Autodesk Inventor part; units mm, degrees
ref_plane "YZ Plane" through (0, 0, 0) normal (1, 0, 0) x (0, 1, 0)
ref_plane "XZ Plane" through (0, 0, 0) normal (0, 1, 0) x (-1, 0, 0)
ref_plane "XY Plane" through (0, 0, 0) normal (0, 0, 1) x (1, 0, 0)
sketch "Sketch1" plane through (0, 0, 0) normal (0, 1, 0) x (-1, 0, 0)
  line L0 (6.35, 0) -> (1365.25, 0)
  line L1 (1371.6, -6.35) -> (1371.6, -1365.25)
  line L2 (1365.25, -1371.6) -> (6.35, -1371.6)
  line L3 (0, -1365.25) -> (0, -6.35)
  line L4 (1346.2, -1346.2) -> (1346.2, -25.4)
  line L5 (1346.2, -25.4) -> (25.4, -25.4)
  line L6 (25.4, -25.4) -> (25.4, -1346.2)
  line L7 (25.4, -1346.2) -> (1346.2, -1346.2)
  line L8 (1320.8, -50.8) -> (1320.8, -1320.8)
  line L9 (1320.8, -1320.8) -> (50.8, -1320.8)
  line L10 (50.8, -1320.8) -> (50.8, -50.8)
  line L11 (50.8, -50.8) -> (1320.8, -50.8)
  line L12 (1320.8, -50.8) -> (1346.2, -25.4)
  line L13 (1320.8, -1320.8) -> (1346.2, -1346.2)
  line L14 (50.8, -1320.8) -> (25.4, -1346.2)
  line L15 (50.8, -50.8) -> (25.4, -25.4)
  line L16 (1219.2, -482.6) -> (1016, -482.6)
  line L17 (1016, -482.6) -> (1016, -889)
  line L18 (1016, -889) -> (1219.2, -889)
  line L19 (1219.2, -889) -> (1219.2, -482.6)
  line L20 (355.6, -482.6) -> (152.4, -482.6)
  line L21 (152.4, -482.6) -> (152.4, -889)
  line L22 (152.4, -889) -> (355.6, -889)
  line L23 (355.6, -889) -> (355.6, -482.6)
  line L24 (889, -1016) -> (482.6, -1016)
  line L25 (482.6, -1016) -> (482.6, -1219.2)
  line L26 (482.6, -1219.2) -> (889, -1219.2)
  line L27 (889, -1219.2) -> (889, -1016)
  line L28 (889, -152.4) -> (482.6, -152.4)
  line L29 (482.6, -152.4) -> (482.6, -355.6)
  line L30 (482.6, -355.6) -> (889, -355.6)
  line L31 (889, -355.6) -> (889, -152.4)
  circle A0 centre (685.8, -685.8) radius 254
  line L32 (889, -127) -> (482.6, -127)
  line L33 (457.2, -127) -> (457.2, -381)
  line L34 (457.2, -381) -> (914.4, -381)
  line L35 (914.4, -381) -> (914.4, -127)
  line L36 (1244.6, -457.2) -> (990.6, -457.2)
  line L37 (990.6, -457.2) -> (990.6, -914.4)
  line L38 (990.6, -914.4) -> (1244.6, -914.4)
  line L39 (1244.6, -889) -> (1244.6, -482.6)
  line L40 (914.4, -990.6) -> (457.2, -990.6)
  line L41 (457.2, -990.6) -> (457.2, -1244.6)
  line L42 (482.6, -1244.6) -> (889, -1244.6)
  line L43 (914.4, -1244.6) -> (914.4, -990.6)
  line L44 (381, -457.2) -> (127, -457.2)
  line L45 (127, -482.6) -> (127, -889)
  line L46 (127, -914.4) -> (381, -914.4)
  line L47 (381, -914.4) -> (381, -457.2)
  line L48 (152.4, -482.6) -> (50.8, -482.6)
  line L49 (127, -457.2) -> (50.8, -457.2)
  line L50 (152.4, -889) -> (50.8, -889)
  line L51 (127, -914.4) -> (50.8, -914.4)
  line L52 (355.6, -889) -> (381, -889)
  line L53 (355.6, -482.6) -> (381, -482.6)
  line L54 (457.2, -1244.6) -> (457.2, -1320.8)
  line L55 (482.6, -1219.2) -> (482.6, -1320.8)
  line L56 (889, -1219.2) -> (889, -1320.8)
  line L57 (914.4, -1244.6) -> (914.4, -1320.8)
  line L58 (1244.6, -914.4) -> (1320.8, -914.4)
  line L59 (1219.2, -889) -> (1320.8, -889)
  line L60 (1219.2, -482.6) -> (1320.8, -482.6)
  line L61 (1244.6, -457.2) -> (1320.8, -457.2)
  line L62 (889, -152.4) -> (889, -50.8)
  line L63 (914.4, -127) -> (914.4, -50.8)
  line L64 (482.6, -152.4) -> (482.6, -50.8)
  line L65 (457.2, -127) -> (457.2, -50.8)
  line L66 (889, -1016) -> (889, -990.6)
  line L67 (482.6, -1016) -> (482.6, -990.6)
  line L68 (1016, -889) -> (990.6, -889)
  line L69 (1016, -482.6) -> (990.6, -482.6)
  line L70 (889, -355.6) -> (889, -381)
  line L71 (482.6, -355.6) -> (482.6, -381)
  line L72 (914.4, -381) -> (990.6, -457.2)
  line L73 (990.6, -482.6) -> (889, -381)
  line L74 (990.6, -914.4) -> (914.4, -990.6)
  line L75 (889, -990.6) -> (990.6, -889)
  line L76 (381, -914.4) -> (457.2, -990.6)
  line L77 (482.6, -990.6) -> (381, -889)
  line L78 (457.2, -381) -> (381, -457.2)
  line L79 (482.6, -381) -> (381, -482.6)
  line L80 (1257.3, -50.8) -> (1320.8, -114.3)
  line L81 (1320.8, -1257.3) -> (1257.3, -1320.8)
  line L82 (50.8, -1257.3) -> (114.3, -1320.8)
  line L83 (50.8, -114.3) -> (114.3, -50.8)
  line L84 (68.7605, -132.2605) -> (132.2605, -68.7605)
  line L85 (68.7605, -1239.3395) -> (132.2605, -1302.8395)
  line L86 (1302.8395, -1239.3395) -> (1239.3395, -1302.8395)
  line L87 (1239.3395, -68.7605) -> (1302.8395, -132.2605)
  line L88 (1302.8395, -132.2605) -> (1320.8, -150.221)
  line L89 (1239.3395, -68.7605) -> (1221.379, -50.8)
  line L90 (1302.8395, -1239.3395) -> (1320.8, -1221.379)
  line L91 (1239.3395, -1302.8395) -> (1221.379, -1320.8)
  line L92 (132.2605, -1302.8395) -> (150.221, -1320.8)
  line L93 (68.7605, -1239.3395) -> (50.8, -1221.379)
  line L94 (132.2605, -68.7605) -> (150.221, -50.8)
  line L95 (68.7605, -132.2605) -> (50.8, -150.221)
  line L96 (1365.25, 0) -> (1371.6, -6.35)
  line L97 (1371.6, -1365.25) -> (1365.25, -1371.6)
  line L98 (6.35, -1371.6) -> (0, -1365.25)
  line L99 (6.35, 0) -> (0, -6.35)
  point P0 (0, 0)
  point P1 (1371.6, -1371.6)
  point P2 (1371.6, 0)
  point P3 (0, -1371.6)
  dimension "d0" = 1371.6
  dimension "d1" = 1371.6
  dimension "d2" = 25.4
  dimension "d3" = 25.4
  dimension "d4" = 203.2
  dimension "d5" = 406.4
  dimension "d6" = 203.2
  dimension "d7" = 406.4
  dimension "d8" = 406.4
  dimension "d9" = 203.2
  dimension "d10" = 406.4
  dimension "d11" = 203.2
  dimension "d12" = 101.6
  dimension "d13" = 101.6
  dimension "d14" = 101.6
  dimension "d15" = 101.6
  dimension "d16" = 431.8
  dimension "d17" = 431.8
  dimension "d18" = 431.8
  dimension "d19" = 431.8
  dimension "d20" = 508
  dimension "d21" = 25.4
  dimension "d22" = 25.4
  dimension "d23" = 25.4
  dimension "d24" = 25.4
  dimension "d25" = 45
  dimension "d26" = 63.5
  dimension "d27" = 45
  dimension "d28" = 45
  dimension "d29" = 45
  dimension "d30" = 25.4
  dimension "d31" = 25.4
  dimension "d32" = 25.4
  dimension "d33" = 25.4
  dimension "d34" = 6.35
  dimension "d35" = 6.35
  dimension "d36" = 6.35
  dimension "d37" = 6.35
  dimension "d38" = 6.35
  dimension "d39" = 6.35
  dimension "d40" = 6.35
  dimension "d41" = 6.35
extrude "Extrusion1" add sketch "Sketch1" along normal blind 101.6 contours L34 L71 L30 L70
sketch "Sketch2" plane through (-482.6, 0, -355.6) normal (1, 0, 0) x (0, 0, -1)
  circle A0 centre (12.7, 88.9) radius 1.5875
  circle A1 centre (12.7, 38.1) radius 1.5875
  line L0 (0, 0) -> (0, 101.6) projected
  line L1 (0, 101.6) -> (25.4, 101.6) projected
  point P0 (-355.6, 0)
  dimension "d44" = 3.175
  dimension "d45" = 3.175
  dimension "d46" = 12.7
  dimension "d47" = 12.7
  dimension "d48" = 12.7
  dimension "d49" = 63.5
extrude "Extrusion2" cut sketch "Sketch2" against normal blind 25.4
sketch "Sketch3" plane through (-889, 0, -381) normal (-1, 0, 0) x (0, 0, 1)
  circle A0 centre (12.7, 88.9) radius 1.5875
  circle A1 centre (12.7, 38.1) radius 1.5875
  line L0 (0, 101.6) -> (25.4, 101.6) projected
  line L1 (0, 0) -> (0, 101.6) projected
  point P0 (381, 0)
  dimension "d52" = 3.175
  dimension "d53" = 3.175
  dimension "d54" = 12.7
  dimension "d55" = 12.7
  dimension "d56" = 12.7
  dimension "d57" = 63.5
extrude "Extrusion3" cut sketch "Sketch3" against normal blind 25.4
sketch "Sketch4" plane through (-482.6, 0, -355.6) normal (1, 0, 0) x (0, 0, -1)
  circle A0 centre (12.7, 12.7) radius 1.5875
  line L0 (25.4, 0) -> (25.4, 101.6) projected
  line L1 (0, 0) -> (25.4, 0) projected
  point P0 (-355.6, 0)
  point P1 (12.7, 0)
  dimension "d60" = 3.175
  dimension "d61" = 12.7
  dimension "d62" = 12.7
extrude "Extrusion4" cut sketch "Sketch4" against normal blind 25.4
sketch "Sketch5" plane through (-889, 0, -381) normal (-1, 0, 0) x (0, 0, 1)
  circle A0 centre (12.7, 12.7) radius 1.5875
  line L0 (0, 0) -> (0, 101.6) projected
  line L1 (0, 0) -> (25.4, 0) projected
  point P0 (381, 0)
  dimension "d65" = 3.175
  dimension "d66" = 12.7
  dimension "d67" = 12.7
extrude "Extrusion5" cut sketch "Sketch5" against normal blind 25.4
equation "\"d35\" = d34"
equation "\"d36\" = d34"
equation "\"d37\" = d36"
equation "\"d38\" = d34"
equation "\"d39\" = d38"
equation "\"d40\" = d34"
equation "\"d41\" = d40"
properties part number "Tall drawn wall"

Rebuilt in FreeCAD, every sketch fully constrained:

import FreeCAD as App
import Part
import Sketcher
from FreeCAD import Vector
Q = App.Units.Quantity


def add_polygon(sketch, points):
    """Adds a closed chain of lines whose ends are joined by coincident constraints."""
    first, n = sketch.GeometryCount, len(points)
    for a, b in zip(points, points[1:] + points[:1]):
        sketch.addGeometry(Part.LineSegment(App.Vector(*a, 0), App.Vector(*b, 0)), False)
    for i in range(n):
        sketch.addConstraint(Sketcher.Constraint("Coincident", first + i, 2, first + (i + 1) % n, 1))

doc = App.newDocument("Part")
body = doc.addObject("PartDesign::Body", "Body")

sketch1 = doc.addObject("Sketcher::SketchObject", "Sketch")
body.addObject(sketch1)
sketch1.AttachmentSupport = (doc.XZ_Plane, [""])
sketch1.MapMode = "FlatFace"
add_polygon(sketch1, [(-482.6, -381), (-889, -381), (-889, -355.6), (-482.6, -355.6)])
sketch1.addConstraint(Sketcher.Constraint("Horizontal", 0))
sketch1.addConstraint(Sketcher.Constraint("Vertical", 1))
sketch1.addConstraint(Sketcher.Constraint("Horizontal", 2))
sketch1.addConstraint(Sketcher.Constraint("Vertical", 3))
sketch1.addConstraint(Sketcher.Constraint("DistanceX", 0, 2, 0, 1, Q("16 in")))
sketch1.addConstraint(Sketcher.Constraint("DistanceY", 1, 1, 1, 2, Q("1 in")))
sketch1.addConstraint(Sketcher.Constraint("DistanceX", 0, 2, -1, 1, Q("35 in")))
sketch1.addConstraint(Sketcher.Constraint("DistanceY", 0, 2, -1, 1, Q("15 in")))
pad1 = doc.addObject("PartDesign::Pad", "Pad")
body.addObject(pad1)
pad1.Profile = sketch1
pad1.Length = Q("4 in")
pad1.Reversed = True

sketch2 = doc.addObject("Sketcher::SketchObject", "Sketch001")
body.addObject(sketch2)
sketch2.AttachmentSupport = (doc.YZ_Plane, [""])
sketch2.MapMode = "FlatFace"
sketch2.AttachmentOffset = App.Placement(Vector(0, 0, -19 * 25.4), App.Rotation())
sketch2.addGeometry(Part.Circle(Vector(88.9, -368.3, 0), Vector(0, 0, 1), 1.5875), False)
sketch2.addGeometry(Part.Circle(Vector(38.1, -368.3, 0), Vector(0, 0, 1), 1.5875), False)
sketch2.addConstraint(Sketcher.Constraint("Equal", 0, 1))
sketch2.addConstraint(Sketcher.Constraint("Horizontal", 0, 3, 1, 3))
sketch2.addConstraint(Sketcher.Constraint("Diameter", 0, Q("0.125 in")))
sketch2.addConstraint(Sketcher.Constraint("DistanceX", 1, 3, 0, 3, Q("2 in")))
sketch2.addConstraint(Sketcher.Constraint("DistanceX", -1, 1, 0, 3, Q("3.5 in")))
sketch2.addConstraint(Sketcher.Constraint("DistanceY", 0, 3, -1, 1, Q("14.5 in")))
pocket1 = doc.addObject("PartDesign::Pocket", "Pocket")
body.addObject(pocket1)
pocket1.Profile = sketch2
pocket1.Length = Q("1 in")

sketch3 = doc.addObject("Sketcher::SketchObject", "Sketch002")
body.addObject(sketch3)
sketch3.AttachmentSupport = (doc.YZ_Plane, [""])
sketch3.MapMode = "FlatFace"
sketch3.AttachmentOffset = App.Placement(Vector(0, 0, -35 * 25.4), App.Rotation())
sketch3.addGeometry(Part.Circle(Vector(88.9, -368.3, 0), Vector(0, 0, 1), 1.5875), False)
sketch3.addGeometry(Part.Circle(Vector(38.1, -368.3, 0), Vector(0, 0, 1), 1.5875), False)
sketch3.addConstraint(Sketcher.Constraint("Equal", 0, 1))
sketch3.addConstraint(Sketcher.Constraint("Horizontal", 0, 3, 1, 3))
sketch3.addConstraint(Sketcher.Constraint("Diameter", 0, Q("0.125 in")))
sketch3.addConstraint(Sketcher.Constraint("DistanceX", 1, 3, 0, 3, Q("2 in")))
sketch3.addConstraint(Sketcher.Constraint("DistanceX", -1, 1, 0, 3, Q("3.5 in")))
sketch3.addConstraint(Sketcher.Constraint("DistanceY", 0, 3, -1, 1, Q("14.5 in")))
pocket2 = doc.addObject("PartDesign::Pocket", "Pocket001")
body.addObject(pocket2)
pocket2.Profile = sketch3
pocket2.Length = Q("1 in")
pocket2.Reversed = True

sketch4 = doc.addObject("Sketcher::SketchObject", "Sketch003")
body.addObject(sketch4)
sketch4.AttachmentSupport = (doc.YZ_Plane, [""])
sketch4.MapMode = "FlatFace"
sketch4.AttachmentOffset = App.Placement(Vector(0, 0, -19 * 25.4), App.Rotation())
sketch4.addGeometry(Part.Circle(Vector(12.7, -368.3, 0), Vector(0, 0, 1), 1.5875), False)
sketch4.addConstraint(Sketcher.Constraint("Diameter", 0, Q("0.125 in")))
sketch4.addConstraint(Sketcher.Constraint("DistanceX", -1, 1, 0, 3, Q("0.5 in")))
sketch4.addConstraint(Sketcher.Constraint("DistanceY", 0, 3, -1, 1, Q("14.5 in")))
pocket3 = doc.addObject("PartDesign::Pocket", "Pocket002")
body.addObject(pocket3)
pocket3.Profile = sketch4
pocket3.Length = Q("1 in")

sketch5 = doc.addObject("Sketcher::SketchObject", "Sketch004")
body.addObject(sketch5)
sketch5.AttachmentSupport = (doc.YZ_Plane, [""])
sketch5.MapMode = "FlatFace"
sketch5.AttachmentOffset = App.Placement(Vector(0, 0, -35 * 25.4), App.Rotation())
sketch5.addGeometry(Part.Circle(Vector(12.7, -368.3, 0), Vector(0, 0, 1), 1.5875), False)
sketch5.addConstraint(Sketcher.Constraint("Diameter", 0, Q("0.125 in")))
sketch5.addConstraint(Sketcher.Constraint("DistanceX", -1, 1, 0, 3, Q("0.5 in")))
sketch5.addConstraint(Sketcher.Constraint("DistanceY", 0, 3, -1, 1, Q("14.5 in")))
pocket4 = doc.addObject("PartDesign::Pocket", "Pocket003")
body.addObject(pocket4)
pocket4.Profile = sketch5
pocket4.Length = Q("1 in")
pocket4.Reversed = True

doc.recompute()
